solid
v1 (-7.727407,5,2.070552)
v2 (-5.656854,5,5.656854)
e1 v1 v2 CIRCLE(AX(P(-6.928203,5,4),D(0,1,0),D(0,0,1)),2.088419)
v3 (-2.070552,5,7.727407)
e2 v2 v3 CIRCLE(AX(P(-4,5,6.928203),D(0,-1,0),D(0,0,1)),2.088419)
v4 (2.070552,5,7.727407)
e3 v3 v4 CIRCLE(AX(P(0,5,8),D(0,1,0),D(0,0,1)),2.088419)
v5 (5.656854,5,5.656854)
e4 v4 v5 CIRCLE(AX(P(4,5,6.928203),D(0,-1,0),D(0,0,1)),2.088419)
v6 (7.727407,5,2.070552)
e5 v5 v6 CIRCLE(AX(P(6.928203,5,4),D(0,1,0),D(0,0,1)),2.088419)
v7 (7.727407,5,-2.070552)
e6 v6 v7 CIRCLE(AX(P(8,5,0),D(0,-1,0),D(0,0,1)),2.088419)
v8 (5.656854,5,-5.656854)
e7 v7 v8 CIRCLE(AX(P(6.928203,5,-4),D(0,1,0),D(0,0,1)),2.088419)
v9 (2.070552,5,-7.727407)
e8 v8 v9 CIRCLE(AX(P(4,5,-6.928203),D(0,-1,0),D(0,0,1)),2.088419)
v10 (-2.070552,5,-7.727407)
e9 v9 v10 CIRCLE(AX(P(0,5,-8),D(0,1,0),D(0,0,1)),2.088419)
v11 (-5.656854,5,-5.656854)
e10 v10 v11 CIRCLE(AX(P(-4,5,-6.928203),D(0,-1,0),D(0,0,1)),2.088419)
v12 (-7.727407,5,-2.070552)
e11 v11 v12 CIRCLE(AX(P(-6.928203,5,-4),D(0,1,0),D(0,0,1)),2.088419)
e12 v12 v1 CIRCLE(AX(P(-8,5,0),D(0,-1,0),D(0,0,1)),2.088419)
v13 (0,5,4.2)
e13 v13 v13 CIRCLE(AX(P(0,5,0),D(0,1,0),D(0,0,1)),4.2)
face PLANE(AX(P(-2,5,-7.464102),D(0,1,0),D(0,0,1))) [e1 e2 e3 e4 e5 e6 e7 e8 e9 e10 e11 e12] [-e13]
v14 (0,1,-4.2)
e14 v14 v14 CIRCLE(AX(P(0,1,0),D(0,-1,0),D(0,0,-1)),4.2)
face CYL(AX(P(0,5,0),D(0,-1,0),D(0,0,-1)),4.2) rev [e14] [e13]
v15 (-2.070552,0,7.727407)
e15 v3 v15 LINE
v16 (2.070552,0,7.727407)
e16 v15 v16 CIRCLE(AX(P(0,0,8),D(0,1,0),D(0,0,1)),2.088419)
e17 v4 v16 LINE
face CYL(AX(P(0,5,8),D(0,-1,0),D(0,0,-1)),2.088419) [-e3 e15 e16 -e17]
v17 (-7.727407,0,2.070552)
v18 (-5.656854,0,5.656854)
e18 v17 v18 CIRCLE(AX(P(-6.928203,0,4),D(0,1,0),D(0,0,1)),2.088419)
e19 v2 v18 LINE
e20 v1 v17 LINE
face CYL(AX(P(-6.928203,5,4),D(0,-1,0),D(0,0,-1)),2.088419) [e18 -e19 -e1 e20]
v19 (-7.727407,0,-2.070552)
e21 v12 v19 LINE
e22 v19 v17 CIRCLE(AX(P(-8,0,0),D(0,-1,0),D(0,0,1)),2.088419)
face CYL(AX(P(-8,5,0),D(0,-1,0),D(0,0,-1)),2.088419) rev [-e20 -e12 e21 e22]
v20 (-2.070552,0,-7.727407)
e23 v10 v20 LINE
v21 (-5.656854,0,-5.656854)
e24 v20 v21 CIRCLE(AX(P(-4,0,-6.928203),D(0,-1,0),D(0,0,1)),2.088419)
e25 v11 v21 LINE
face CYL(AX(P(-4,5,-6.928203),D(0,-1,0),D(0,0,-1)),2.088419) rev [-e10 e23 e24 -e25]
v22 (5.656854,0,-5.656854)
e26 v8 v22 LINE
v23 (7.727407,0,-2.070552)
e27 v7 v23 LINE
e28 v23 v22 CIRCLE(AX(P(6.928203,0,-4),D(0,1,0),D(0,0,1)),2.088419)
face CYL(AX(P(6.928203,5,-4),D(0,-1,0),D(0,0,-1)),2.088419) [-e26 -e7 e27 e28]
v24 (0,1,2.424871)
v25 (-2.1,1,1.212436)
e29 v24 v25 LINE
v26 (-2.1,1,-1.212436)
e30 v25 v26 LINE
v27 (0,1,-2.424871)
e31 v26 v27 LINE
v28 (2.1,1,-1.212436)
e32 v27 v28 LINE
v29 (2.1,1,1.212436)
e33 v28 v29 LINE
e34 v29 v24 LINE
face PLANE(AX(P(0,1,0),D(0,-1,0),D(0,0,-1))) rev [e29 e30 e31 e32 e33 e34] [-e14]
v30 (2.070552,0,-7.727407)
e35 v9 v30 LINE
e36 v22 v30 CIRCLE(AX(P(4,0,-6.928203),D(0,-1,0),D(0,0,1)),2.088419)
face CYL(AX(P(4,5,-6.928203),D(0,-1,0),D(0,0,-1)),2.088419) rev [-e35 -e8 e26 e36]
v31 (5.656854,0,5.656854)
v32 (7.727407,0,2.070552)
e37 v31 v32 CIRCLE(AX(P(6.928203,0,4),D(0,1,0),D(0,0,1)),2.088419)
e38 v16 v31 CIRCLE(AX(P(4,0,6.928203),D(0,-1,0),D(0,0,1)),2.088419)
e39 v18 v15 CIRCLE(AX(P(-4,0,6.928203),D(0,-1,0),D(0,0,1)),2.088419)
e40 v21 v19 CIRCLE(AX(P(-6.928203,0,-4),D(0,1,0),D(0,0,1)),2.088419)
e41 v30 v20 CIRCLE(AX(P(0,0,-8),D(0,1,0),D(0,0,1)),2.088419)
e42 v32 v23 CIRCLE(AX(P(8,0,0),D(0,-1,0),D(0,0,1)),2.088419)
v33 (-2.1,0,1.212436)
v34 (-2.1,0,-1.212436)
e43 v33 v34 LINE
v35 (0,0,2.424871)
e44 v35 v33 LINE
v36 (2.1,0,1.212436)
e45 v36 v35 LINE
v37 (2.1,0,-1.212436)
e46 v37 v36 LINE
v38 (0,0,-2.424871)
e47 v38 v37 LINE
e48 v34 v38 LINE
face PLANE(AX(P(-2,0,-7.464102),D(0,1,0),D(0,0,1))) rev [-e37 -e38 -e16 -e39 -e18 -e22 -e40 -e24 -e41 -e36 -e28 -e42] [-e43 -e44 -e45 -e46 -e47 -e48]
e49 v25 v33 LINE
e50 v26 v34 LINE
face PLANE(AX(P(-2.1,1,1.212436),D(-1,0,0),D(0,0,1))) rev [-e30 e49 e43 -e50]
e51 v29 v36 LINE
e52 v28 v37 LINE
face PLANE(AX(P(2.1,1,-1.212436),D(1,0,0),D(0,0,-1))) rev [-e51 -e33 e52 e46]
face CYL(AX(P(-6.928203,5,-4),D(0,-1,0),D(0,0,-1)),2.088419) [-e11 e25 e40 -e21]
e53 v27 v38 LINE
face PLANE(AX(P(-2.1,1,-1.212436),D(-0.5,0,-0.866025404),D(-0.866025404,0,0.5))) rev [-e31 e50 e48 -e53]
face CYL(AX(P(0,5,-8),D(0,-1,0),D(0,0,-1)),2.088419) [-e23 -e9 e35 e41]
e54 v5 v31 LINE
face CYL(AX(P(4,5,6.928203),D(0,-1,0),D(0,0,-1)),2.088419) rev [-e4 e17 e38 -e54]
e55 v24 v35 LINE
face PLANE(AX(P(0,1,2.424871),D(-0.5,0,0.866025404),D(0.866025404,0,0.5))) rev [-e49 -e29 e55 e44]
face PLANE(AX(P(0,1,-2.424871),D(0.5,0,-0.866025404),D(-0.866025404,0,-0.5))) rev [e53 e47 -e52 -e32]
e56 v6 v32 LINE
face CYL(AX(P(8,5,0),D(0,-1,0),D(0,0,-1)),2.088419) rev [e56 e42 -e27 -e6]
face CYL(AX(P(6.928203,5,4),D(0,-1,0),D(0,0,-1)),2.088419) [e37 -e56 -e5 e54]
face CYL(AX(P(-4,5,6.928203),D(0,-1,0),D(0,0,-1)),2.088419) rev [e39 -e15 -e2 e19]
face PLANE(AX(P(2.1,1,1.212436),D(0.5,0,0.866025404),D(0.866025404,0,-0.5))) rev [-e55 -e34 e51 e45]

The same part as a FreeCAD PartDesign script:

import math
import FreeCAD as App
import Part
import Sketcher

V = App.Vector
Q = App.Units.Quantity

doc = App.newDocument("Part")
body = doc.addObject("PartDesign::Body", "Body")

sketch1 = body.newObject("Sketcher::SketchObject", "Sketch")
sketch1.AttachmentSupport = (doc.getObject("XZ_Plane"), [""])
sketch1.MapMode = "FlatFace"
sketch1.addGeometry([
    Part.ArcOfCircle(Part.Circle(V(0, -8, 0), V(0, 0, 1), 2.088419), math.radians(172.5), math.radians(367.5)),
    Part.ArcOfCircle(Part.Circle(V(-4, -6.928203, 0), V(0, 0, 1), 2.088419), math.radians(-22.5), math.radians(142.5)),
    Part.ArcOfCircle(Part.Circle(V(-6.928203, -4, 0), V(0, 0, 1), 2.088419), math.radians(112.5), math.radians(307.5)),
    Part.ArcOfCircle(Part.Circle(V(-8, 0, 0), V(0, 0, 1), 2.088419), math.radians(-82.5), math.radians(82.5)),
    Part.ArcOfCircle(Part.Circle(V(-6.928203, 4, 0), V(0, 0, 1), 2.088419), math.radians(52.5), math.radians(247.5)),
    Part.ArcOfCircle(Part.Circle(V(-4, 6.928203, 0), V(0, 0, 1), 2.088419), math.radians(-142.5), math.radians(22.5)),
    Part.ArcOfCircle(Part.Circle(V(0, 8, 0), V(0, 0, 1), 2.088419), math.radians(-7.5), math.radians(187.5)),
    Part.ArcOfCircle(Part.Circle(V(4, 6.928203, 0), V(0, 0, 1), 2.088419), math.radians(157.5), math.radians(322.5)),
    Part.ArcOfCircle(Part.Circle(V(6.928203, 4, 0), V(0, 0, 1), 2.088419), math.radians(-67.5), math.radians(127.5)),
    Part.ArcOfCircle(Part.Circle(V(8, 0, 0), V(0, 0, 1), 2.088419), math.radians(97.5), math.radians(262.5)),
    Part.ArcOfCircle(Part.Circle(V(6.928203, -4, 0), V(0, 0, 1), 2.088419), math.radians(-127.5), math.radians(67.5)),
    Part.ArcOfCircle(Part.Circle(V(4, -6.928203, 0), V(0, 0, 1), 2.088419), math.radians(37.5), math.radians(202.5)),
    Part.Circle(V(0, 0, 0), V(0, 0, 1), 4.2),
], False)
sketch1.addConstraint([
    Sketcher.Constraint("Coincident", 0, 1, 1, 1),
    Sketcher.Constraint("Coincident", 1, 2, 2, 2),
    Sketcher.Constraint("Coincident", 2, 1, 3, 1),
    Sketcher.Constraint("Coincident", 3, 2, 4, 2),
    Sketcher.Constraint("Coincident", 4, 1, 5, 1),
    Sketcher.Constraint("Coincident", 5, 2, 6, 2),
    Sketcher.Constraint("Coincident", 6, 1, 7, 1),
    Sketcher.Constraint("Coincident", 7, 2, 8, 2),
    Sketcher.Constraint("Coincident", 8, 1, 9, 1),
    Sketcher.Constraint("Coincident", 9, 2, 10, 2),
    Sketcher.Constraint("Coincident", 10, 1, 11, 1),
    Sketcher.Constraint("Coincident", 11, 2, 0, 2),
    Sketcher.Constraint("Coincident", 12, 3, -1, 1),
    Sketcher.Constraint("Equal", 0, 1),
    Sketcher.Constraint("Equal", 1, 2),
    Sketcher.Constraint("Equal", 2, 3),
    Sketcher.Constraint("Equal", 3, 4),
    Sketcher.Constraint("Equal", 4, 5),
    Sketcher.Constraint("Equal", 5, 6),
    Sketcher.Constraint("Equal", 6, 7),
    Sketcher.Constraint("Equal", 7, 8),
    Sketcher.Constraint("Equal", 8, 9),
    Sketcher.Constraint("Equal", 9, 10),
    Sketcher.Constraint("Equal", 10, 11),
    Sketcher.Constraint("Symmetric", 0, 3, 6, 3, -1, 1),
    Sketcher.Constraint("Symmetric", 1, 3, 7, 3, -1, 1),
    Sketcher.Constraint("Symmetric", 2, 3, 8, 3, -1, 1),
    Sketcher.Constraint("Symmetric", 3, 3, 9, 3, -1, 1),
    Sketcher.Constraint("Symmetric", 4, 3, 10, 3, -1, 1),
    Sketcher.Constraint("Symmetric", 5, 3, 11, 3, -1, 1),
    Sketcher.Constraint("Symmetric", 5, 3, 7, 3, -2),
    Sketcher.Constraint("Symmetric", 4, 3, 8, 3, -2),
    Sketcher.Constraint("PointOnObject", 0, 3, -2),
    Sketcher.Constraint("PointOnObject", 3, 3, -1),
    Sketcher.Constraint("Diameter", 12, 8.4),
    Sketcher.Constraint("DistanceY", 0, 3, -1, 1, 8.0),
    Sketcher.Constraint("DistanceX", 1, 3, -1, 1, 4.0),
    Sketcher.Constraint("DistanceY", 2, 3, -1, 1, 4.0),
    Sketcher.Constraint("DistanceX", 3, 3, -1, 1, 8.0),
    Sketcher.Constraint("Radius", 0, 2.088419),
    Sketcher.Constraint("DistanceX", 1, 2, 0, 1, 3.586302),
    Sketcher.Constraint("DistanceY", 1, 2, 2, 1, 3.586302),
])
pad1 = body.newObject("PartDesign::Pad", "Pad")
pad1.Profile = sketch1
pad1.Length = 5
pad1.Reversed = True

sketch2 = body.newObject("Sketcher::SketchObject", "Sketch001")
sketch2.AttachmentSupport = (doc.getObject("XZ_Plane"), [""])
sketch2.MapMode = "FlatFace"
sketch2.addGeometry([
    Part.Circle(V(0, 0, 0), V(0, 0, 1), 4.2),
    Part.LineSegment(V(-2.1, 1.212436, 0), V(0, 2.424871, 0)),
    Part.LineSegment(V(0, 2.424871, 0), V(2.1, 1.212436, 0)),
    Part.LineSegment(V(2.1, 1.212436, 0), V(2.1, -1.212436, 0)),
    Part.LineSegment(V(2.1, -1.212436, 0), V(0, -2.424871, 0)),
    Part.LineSegment(V(0, -2.424871, 0), V(-2.1, -1.212436, 0)),
    Part.LineSegment(V(-2.1, -1.212436, 0), V(-2.1, 1.212436, 0)),
], False)
sketch2.addConstraint([
    Sketcher.Constraint("Coincident", 1, 2, 2, 1),
    Sketcher.Constraint("Coincident", 2, 2, 3, 1),
    Sketcher.Constraint("Coincident", 3, 2, 4, 1),
    Sketcher.Constraint("Coincident", 4, 2, 5, 1),
    Sketcher.Constraint("Coincident", 5, 2, 6, 1),
    Sketcher.Constraint("Coincident", 6, 2, 1, 1),
    Sketcher.Constraint("Vertical", 3),
    Sketcher.Constraint("Vertical", 6),
    Sketcher.Constraint("Coincident", 0, 3, -1, 1),
    Sketcher.Constraint("Symmetric", 1, 2, 4, 2, -1, 1),
    Sketcher.Constraint("Symmetric", 2, 2, 5, 2, -1, 1),
    Sketcher.Constraint("PointOnObject", 1, 2, -2),
    Sketcher.Constraint("Parallel", 1, 4),
    Sketcher.Constraint("Horizontal", 3, 2, 5, 2),
    Sketcher.Constraint("Diameter", 0, 8.4),
    Sketcher.Constraint("Angle", 1, Q("30 deg")),
    Sketcher.Constraint("DistanceX", -1, 1, 2, 2, 2.1),
    Sketcher.Constraint("DistanceY", 3, 2, 3, 1, 2.424871),
])
pad2 = body.newObject("PartDesign::Pad", "Pad001")
pad2.Profile = sketch2
pad2.Length = 1
pad2.Reversed = True

doc.recompute()
